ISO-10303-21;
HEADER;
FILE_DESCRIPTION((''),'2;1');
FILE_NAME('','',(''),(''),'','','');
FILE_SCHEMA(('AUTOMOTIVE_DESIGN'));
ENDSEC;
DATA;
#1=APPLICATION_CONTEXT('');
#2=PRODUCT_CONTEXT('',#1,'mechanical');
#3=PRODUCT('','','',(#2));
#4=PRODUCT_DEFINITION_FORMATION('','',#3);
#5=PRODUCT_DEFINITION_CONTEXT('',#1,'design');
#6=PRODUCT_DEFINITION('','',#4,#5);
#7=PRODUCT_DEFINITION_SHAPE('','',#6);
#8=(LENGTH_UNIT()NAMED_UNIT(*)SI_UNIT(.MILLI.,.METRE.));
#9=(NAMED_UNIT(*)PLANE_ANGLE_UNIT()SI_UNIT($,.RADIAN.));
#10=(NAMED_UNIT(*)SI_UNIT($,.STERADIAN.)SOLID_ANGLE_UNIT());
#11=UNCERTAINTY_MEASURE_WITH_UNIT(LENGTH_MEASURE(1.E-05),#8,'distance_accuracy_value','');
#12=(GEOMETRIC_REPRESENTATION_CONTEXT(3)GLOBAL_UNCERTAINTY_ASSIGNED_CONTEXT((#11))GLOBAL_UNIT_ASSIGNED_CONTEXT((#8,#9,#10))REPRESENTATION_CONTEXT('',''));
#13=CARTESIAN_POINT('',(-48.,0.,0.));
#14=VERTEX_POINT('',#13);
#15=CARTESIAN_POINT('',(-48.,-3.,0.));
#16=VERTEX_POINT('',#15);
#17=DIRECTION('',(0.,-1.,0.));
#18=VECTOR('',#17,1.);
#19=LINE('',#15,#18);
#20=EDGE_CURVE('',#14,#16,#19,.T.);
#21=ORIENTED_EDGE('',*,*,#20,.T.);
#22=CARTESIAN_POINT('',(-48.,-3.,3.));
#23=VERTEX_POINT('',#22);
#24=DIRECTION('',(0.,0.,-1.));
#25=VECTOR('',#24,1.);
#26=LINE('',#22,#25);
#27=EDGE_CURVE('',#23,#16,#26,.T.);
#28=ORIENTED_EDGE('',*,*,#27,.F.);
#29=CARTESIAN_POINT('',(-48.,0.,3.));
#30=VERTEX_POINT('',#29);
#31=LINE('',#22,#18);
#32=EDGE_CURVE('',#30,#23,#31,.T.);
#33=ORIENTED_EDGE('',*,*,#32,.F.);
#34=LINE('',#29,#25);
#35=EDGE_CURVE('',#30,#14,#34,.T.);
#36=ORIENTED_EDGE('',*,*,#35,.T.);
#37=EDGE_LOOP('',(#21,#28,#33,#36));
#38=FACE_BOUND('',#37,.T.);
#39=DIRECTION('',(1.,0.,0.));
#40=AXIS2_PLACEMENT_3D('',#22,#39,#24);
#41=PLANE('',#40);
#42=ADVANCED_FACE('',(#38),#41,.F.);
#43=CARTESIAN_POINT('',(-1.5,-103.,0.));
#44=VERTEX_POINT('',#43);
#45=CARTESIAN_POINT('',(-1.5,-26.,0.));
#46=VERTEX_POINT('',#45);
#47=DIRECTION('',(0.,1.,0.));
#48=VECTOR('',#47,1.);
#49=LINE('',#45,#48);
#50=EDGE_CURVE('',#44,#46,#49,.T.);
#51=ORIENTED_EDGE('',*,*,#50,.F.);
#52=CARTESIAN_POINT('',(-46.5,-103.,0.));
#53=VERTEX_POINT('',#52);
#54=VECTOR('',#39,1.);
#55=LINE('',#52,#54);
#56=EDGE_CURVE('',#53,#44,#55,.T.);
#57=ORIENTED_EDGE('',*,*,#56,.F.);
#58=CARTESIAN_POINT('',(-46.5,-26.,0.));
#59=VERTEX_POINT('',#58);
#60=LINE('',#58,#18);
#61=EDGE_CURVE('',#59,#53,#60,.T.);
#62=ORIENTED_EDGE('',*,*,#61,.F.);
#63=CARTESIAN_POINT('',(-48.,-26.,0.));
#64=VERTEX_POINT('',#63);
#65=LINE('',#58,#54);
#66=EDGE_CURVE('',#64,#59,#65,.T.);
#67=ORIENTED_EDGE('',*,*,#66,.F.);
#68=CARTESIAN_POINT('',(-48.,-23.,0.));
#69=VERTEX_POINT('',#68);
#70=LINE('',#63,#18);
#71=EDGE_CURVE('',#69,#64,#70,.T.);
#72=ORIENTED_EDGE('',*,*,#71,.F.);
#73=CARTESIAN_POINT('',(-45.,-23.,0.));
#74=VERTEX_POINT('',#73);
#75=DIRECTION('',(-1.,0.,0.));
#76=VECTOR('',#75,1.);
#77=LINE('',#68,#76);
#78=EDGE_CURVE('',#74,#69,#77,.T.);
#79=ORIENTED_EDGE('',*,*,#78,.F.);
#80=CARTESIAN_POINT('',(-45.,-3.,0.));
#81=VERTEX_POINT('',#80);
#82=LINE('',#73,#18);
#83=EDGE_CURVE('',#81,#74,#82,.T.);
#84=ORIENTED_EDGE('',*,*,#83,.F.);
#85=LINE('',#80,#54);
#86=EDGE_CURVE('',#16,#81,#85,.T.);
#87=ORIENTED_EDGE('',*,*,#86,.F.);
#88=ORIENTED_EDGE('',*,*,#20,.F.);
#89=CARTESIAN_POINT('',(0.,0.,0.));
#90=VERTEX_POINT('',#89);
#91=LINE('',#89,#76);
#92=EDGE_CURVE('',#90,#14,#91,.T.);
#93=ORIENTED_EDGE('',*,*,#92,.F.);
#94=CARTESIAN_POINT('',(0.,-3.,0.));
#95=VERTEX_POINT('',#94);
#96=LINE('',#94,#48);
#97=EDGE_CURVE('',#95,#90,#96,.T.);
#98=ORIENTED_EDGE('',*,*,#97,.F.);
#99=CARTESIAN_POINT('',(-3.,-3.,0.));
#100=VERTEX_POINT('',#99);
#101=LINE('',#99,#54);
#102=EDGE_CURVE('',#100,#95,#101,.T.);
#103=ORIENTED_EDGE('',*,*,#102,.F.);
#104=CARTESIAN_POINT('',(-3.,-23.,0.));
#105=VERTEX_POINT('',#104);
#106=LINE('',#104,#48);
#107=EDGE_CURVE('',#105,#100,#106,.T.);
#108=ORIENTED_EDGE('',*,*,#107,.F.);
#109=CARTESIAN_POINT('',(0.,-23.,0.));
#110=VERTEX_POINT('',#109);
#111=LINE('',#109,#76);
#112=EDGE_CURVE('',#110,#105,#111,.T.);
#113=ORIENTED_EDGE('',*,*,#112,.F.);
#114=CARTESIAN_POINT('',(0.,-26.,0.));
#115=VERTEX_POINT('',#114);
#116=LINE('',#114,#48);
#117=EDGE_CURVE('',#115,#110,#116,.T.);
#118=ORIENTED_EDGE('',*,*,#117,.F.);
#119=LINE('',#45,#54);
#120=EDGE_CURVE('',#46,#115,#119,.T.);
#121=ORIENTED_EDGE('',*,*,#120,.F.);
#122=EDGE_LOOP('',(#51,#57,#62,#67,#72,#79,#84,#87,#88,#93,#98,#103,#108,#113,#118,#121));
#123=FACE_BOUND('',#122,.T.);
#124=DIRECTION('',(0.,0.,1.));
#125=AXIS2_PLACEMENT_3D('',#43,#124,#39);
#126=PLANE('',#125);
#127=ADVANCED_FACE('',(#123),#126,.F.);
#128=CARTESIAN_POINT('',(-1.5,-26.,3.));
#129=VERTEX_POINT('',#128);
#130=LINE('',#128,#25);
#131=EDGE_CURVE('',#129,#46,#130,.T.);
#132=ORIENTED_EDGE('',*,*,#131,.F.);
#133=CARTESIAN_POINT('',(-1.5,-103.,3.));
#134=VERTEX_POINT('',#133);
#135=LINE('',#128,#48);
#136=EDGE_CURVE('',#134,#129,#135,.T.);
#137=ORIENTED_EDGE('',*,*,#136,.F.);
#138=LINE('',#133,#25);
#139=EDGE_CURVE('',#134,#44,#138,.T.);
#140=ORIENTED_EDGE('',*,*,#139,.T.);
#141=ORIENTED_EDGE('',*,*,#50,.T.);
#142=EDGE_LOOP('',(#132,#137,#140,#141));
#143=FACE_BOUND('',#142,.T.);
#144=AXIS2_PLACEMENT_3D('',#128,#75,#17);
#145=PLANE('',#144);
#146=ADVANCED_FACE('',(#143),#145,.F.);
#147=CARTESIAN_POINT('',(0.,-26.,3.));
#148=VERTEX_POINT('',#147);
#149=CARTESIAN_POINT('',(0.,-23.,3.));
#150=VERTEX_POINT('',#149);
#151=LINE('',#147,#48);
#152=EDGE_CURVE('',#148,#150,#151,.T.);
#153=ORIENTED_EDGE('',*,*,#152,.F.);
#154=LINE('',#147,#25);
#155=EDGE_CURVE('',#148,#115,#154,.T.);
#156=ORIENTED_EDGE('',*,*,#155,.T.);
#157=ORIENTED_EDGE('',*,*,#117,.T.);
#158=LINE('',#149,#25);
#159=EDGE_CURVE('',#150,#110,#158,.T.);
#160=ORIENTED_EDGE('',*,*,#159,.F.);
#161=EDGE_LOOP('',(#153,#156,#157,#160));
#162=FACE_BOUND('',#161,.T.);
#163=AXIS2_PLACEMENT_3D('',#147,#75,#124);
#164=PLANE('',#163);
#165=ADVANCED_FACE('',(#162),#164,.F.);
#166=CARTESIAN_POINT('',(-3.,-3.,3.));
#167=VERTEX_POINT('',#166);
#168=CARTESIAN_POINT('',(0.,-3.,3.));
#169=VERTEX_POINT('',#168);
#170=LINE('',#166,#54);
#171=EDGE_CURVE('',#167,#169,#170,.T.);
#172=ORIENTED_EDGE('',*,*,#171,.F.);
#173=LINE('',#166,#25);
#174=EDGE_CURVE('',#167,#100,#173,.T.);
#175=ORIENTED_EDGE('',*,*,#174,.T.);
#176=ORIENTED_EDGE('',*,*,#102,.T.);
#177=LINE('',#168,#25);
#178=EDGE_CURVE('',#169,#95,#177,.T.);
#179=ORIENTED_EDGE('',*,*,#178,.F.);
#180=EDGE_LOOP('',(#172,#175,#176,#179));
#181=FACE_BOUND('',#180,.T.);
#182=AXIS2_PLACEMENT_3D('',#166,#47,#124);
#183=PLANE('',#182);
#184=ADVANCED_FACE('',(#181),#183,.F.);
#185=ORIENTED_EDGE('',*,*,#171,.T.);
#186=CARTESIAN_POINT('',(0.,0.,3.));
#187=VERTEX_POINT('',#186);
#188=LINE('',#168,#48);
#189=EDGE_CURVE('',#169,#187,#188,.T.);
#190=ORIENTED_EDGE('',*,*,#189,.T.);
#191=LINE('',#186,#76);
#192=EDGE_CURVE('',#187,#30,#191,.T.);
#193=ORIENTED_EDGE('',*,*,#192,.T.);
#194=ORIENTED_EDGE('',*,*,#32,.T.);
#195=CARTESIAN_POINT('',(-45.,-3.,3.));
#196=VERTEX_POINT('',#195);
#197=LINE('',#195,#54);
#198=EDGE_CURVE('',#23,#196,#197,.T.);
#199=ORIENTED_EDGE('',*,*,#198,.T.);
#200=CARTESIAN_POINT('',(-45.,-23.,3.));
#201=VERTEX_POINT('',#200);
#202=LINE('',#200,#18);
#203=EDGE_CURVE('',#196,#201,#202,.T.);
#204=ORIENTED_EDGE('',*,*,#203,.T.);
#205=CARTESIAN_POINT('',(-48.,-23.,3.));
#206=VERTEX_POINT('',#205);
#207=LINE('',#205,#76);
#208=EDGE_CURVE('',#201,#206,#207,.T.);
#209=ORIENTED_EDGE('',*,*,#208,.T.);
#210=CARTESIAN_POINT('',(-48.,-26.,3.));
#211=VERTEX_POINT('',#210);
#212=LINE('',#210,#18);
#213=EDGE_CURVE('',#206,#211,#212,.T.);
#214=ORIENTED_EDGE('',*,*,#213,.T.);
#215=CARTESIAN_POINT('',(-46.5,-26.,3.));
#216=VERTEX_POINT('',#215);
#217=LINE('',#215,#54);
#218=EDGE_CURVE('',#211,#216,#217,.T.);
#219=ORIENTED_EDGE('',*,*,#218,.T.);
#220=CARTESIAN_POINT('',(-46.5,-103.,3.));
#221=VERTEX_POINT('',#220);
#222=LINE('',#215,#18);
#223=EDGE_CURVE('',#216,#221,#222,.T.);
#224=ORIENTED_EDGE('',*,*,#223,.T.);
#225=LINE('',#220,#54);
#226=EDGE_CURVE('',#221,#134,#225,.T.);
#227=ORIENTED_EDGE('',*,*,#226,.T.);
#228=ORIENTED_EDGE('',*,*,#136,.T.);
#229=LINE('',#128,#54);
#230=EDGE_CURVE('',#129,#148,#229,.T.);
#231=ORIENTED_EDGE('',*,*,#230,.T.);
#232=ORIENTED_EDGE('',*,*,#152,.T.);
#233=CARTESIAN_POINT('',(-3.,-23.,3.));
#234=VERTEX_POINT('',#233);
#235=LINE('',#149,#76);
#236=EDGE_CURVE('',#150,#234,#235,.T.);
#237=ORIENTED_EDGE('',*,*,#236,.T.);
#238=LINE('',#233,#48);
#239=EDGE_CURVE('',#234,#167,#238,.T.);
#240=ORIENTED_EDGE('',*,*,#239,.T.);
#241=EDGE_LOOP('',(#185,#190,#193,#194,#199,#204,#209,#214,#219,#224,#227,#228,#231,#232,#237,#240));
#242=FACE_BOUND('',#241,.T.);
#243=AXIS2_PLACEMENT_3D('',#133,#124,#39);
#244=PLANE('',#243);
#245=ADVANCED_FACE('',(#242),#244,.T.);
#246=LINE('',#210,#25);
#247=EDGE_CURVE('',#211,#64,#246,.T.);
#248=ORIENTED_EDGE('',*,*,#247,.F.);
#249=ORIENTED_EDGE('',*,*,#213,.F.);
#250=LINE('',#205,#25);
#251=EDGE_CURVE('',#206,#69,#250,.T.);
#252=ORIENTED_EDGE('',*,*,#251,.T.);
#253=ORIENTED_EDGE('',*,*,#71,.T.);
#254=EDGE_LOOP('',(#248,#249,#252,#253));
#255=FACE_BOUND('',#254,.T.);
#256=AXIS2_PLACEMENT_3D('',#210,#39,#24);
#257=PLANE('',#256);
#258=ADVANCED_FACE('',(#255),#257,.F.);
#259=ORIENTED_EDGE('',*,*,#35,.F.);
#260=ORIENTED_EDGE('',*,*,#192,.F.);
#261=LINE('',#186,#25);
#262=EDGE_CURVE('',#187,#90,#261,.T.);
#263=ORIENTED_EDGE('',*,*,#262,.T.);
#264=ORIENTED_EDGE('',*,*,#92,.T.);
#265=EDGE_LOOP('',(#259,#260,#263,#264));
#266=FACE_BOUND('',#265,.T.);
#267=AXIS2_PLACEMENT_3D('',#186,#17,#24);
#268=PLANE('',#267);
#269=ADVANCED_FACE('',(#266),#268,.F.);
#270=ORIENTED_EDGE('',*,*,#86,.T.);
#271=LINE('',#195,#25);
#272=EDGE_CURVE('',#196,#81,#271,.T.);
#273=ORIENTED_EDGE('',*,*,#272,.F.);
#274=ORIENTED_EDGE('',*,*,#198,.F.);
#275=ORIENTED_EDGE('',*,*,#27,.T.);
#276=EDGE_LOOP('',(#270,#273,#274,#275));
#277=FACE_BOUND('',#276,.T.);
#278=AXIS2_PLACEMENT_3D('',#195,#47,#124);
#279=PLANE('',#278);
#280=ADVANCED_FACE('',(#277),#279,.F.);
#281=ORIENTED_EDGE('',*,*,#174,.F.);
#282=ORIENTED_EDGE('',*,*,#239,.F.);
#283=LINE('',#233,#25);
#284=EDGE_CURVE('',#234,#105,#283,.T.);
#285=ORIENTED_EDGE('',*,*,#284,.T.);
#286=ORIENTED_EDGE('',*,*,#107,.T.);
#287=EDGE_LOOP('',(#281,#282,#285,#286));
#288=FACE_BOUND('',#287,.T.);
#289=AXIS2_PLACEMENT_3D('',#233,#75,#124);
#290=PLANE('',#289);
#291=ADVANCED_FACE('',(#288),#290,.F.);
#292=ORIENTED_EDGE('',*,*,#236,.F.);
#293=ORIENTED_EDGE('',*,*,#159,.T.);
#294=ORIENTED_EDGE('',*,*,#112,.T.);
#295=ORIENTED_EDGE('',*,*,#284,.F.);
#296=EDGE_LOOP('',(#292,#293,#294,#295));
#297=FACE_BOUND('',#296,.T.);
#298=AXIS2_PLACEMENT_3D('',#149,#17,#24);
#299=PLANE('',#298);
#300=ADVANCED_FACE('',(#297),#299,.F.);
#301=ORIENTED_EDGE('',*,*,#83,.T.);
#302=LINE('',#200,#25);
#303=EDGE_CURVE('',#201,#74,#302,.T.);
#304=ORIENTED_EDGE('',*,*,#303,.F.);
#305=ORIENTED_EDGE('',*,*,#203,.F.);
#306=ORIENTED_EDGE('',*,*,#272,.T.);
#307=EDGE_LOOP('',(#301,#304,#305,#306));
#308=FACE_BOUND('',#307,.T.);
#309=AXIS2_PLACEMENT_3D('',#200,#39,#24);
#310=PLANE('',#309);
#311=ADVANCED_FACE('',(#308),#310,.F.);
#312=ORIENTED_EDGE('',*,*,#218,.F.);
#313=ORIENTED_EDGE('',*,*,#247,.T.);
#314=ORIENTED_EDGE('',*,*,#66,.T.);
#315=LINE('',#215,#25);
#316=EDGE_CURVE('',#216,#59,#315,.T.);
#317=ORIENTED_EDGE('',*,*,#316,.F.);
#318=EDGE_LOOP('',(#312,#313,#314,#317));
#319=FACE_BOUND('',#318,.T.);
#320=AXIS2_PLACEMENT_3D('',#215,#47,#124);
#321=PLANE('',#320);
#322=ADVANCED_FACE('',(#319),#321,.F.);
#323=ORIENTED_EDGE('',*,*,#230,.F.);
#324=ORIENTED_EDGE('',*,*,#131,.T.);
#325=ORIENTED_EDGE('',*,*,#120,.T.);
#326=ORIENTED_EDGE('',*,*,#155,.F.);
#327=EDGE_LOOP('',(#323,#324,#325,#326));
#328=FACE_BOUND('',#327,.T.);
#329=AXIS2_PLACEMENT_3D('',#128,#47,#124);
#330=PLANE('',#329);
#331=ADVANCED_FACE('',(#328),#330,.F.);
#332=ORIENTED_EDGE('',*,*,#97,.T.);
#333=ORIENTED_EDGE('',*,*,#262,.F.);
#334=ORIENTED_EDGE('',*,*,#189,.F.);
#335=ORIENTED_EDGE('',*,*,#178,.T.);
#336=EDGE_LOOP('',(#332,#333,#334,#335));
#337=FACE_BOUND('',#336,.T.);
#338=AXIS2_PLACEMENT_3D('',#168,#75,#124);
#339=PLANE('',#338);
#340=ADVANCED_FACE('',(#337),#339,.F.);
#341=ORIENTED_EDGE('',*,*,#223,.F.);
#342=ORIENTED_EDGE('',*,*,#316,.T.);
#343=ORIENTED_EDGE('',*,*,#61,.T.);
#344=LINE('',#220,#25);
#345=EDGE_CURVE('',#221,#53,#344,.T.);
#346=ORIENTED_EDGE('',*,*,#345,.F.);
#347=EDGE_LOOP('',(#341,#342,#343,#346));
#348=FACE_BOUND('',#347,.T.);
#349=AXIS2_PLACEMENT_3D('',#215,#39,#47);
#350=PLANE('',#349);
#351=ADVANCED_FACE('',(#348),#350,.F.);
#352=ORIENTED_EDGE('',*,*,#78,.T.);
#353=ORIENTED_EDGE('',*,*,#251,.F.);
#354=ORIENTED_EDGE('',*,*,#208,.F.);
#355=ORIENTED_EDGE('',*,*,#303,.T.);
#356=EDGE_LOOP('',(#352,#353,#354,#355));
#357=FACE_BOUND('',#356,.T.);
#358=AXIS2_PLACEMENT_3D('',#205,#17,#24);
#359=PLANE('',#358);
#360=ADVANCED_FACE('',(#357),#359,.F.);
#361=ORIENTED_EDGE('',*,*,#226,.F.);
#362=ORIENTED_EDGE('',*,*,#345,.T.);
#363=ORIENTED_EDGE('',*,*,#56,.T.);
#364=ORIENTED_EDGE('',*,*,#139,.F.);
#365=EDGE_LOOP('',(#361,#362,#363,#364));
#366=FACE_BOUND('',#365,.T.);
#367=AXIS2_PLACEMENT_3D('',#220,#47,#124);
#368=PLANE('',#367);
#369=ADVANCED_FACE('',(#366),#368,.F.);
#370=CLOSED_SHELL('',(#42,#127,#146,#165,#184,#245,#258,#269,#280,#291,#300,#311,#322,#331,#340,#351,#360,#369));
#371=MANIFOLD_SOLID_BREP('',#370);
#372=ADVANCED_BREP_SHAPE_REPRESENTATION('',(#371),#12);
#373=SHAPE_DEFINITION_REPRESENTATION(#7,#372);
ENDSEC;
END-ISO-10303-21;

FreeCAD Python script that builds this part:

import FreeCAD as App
import Part
import Sketcher

V = App.Vector
Q = App.Units.Quantity


def add_polygon(sketch, points):
    """Adds a closed chain of lines whose ends are joined by coincident constraints."""
    first, n = sketch.GeometryCount, len(points)
    for a, b in zip(points, points[1:] + points[:1]):
        sketch.addGeometry(Part.LineSegment(App.Vector(*a, 0), App.Vector(*b, 0)), False)
    for i in range(n):
        sketch.addConstraint(Sketcher.Constraint("Coincident", first + i, 2, first + (i + 1) % n, 1))

doc = App.newDocument("Part")
body = doc.addObject("PartDesign::Body", "Body")

# Sketch on XY plane
sketch1 = doc.addObject("Sketcher::SketchObject", "Sketch")
body.addObject(sketch1)
sketch1.AttachmentSupport = (doc.XY_Plane, [""])
sketch1.MapMode = "FlatFace"
add_polygon(sketch1, [(-1.5, -26), (0, -26), (0, -23), (-3, -23), (-3, -3), (0, -3), (0, 0), (-48, 0), (-48, -3), (-45, -3), (-45, -23), (-48, -23), (-48, -26), (-46.5, -26), (-46.5, -103), (-1.5, -103)])  # lines 0-15
sketch1.addConstraint(Sketcher.Constraint("Horizontal", 0))
sketch1.addConstraint(Sketcher.Constraint("Vertical", 1))
sketch1.addConstraint(Sketcher.Constraint("Horizontal", 2))
sketch1.addConstraint(Sketcher.Constraint("Vertical", 3))
sketch1.addConstraint(Sketcher.Constraint("Horizontal", 4))
sketch1.addConstraint(Sketcher.Constraint("Vertical", 5))
sketch1.addConstraint(Sketcher.Constraint("Horizontal", 6))
sketch1.addConstraint(Sketcher.Constraint("Vertical", 7))
sketch1.addConstraint(Sketcher.Constraint("Horizontal", 8))
sketch1.addConstraint(Sketcher.Constraint("Vertical", 9))
sketch1.addConstraint(Sketcher.Constraint("Horizontal", 10))
sketch1.addConstraint(Sketcher.Constraint("Vertical", 11))
sketch1.addConstraint(Sketcher.Constraint("Horizontal", 12))
sketch1.addConstraint(Sketcher.Constraint("Vertical", 13))
sketch1.addConstraint(Sketcher.Constraint("Horizontal", 14))
sketch1.addConstraint(Sketcher.Constraint("Vertical", 15))
sketch1.addConstraint(Sketcher.Constraint("Coincident", 5, 2, -1, 1))
sketch1.addConstraint(Sketcher.Constraint("PointOnObject", 0, 2, -2))
sketch1.addConstraint(Sketcher.Constraint("Horizontal", 4, 2, 7, 2))
sketch1.addConstraint(Sketcher.Constraint("Horizontal", 2, 2, 9, 2))
sketch1.addConstraint(Sketcher.Constraint("Horizontal", 0, 2, 11, 2))
sketch1.addConstraint(Sketcher.Constraint("Vertical", 7, 2, 10, 2))
sketch1.addConstraint(Sketcher.Constraint("Equal", 4, 8))
sketch1.addConstraint(Sketcher.Constraint("Equal", 0, 12))
sketch1.addConstraint(Sketcher.Constraint("Equal", 10, 1))
sketch1.addConstraint(Sketcher.Constraint("Equal", 1, 5))
sketch1.addConstraint(Sketcher.Constraint("DistanceX", 2, 2, 2, 1, Q("3 mm")))
sketch1.addConstraint(Sketcher.Constraint("DistanceX", 6, 2, 6, 1, Q("48 mm")))
sketch1.addConstraint(Sketcher.Constraint("DistanceX", 14, 1, 14, 2, Q("45 mm")))
sketch1.addConstraint(Sketcher.Constraint("DistanceY", 3, 1, 3, 2, Q("20 mm")))
sketch1.addConstraint(Sketcher.Constraint("DistanceY", 13, 2, 13, 1, Q("77 mm")))
pad1 = doc.addObject("PartDesign::Pad", "Pad")
body.addObject(pad1)
pad1.Profile = sketch1
pad1.Length = 3

doc.recompute()
